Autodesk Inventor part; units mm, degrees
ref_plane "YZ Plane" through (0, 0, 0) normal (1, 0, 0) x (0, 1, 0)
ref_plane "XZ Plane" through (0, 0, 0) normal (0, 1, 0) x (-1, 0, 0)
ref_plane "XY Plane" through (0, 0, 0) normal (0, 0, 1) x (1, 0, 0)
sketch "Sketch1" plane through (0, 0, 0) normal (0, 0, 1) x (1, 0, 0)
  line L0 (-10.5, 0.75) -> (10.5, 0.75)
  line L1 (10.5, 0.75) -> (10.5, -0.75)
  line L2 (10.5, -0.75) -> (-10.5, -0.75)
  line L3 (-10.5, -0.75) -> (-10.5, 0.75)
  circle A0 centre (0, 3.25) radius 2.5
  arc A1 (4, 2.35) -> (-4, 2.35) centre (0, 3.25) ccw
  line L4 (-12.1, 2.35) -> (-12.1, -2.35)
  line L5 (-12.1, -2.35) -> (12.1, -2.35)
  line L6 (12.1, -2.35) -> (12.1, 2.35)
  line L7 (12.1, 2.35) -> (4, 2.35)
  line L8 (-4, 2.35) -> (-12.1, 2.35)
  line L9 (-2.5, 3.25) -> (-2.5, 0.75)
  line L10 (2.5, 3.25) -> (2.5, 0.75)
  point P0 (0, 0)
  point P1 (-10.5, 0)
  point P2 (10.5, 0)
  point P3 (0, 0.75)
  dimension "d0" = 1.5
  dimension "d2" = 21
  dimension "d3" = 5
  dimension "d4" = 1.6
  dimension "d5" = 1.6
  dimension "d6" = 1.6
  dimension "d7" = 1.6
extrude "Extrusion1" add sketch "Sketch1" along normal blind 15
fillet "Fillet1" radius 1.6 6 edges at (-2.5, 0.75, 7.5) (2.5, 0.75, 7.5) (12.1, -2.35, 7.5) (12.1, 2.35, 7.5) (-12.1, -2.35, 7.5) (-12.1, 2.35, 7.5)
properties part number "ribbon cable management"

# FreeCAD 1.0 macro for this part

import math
import FreeCAD as App
import Part
import Sketcher

V = App.Vector
Q = App.Units.Quantity


def edges_at(feature, points):
    """Names of the edges that pass closest to the given points."""
    edges = feature.Shape.Edges
    near = lambda p: min(range(len(edges)), key=lambda i: edges[i].distToShape(Part.Vertex(*p))[0])
    return sorted({f"Edge{near(p) + 1}" for p in points})

doc = App.newDocument("Part")
body = doc.addObject("PartDesign::Body", "Body")

# Sketch on XY plane
sketch1 = body.newObject("Sketcher::SketchObject", "Sketch")
sketch1.AttachmentSupport = (doc.getObject("XY_Plane"), [""])
sketch1.MapMode = "FlatFace"
sketch1.addGeometry([
    Part.LineSegment(V(12.1, 2.4, 0), V(4, 2.4, 0)),  # 0
    Part.ArcOfCircle(Part.Circle(V(0, 3.2, 0), V(0, 0, 1), 4.1), math.radians(-13), math.radians(193)),  # 1
    Part.LineSegment(V(-4, 2.4, 0), V(-12.1, 2.4, 0)),  # 2
    Part.LineSegment(V(-12.1, 2.4, 0), V(-12.1, -2.4, 0)),  # 3
    Part.LineSegment(V(-12.1, -2.4, 0), V(12.1, -2.4, 0)),  # 4
    Part.LineSegment(V(12.1, -2.4, 0), V(12.1, 2.4, 0)),  # 5
    Part.LineSegment(V(-10.5, -0.8, 0), V(-10.5, 0.8, 0)),  # 6
    Part.LineSegment(V(-10.5, 0.8, 0), V(-2.5, 0.8, 0)),  # 7
    Part.LineSegment(V(-2.5, 0.8, 0), V(-2.5, 3.2, 0)),  # 8
    Part.ArcOfCircle(Part.Circle(V(0, 3.2, 0), V(0, 0, 1), 2.5), math.radians(0), math.radians(180)),  # 9
    Part.LineSegment(V(2.5, 3.2, 0), V(2.5, 0.8, 0)),  # 10
    Part.LineSegment(V(2.5, 0.8, 0), V(10.5, 0.8, 0)),  # 11
    Part.LineSegment(V(10.5, 0.8, 0), V(10.5, -0.8, 0)),  # 12
    Part.LineSegment(V(10.5, -0.8, 0), V(-10.5, -0.8, 0)),  # 13
], False)
sketch1.addConstraint([
    Sketcher.Constraint("Coincident", 0, 2, 1, 1),
    Sketcher.Constraint("Coincident", 1, 2, 2, 1),
    Sketcher.Constraint("Coincident", 2, 2, 3, 1),
    Sketcher.Constraint("Coincident", 3, 2, 4, 1),
    Sketcher.Constraint("Coincident", 4, 2, 5, 1),
    Sketcher.Constraint("Coincident", 5, 2, 0, 1),
    Sketcher.Constraint("Coincident", 6, 2, 7, 1),
    Sketcher.Constraint("Coincident", 7, 2, 8, 1),
    Sketcher.Constraint("Tangent", 8, 2, 9, 2),
    Sketcher.Constraint("Tangent", 9, 1, 10, 1),
    Sketcher.Constraint("Coincident", 10, 2, 11, 1),
    Sketcher.Constraint("Coincident", 11, 2, 12, 1),
    Sketcher.Constraint("Coincident", 12, 2, 13, 1),
    Sketcher.Constraint("Coincident", 13, 2, 6, 1),
    Sketcher.Constraint("Horizontal", 0),
    Sketcher.Constraint("Horizontal", 2),
    Sketcher.Constraint("Vertical", 3),
    Sketcher.Constraint("Horizontal", 4),
    Sketcher.Constraint("Vertical", 5),
    Sketcher.Constraint("Vertical", 6),
    Sketcher.Constraint("Horizontal", 7),
    Sketcher.Constraint("Vertical", 8),
    Sketcher.Constraint("Vertical", 10),
    Sketcher.Constraint("Horizontal", 11),
    Sketcher.Constraint("Vertical", 12),
    Sketcher.Constraint("Horizontal", 13),
    Sketcher.Constraint("Coincident", 9, 3, 1, 3),
    Sketcher.Constraint("Symmetric", 2, 2, 4, 2, -1, 1),
    Sketcher.Constraint("Symmetric", 6, 2, 12, 2, -1, 1),
    Sketcher.Constraint("Symmetric", 0, 2, 1, 2, -2),
    Sketcher.Constraint("Horizontal", 7, 2, 10, 2),
    Sketcher.Constraint("Radius", 9, Q("2.5 mm")),
    Sketcher.Constraint("DistanceX", 13, 2, 13, 1, Q("21 mm")),
    Sketcher.Constraint("DistanceY", 6, 1, 6, 2, Q("1.5 mm")),
    Sketcher.Constraint("Radius", 1, Q("4.1 mm")),
    Sketcher.Constraint("DistanceX", 2, 2, 6, 2, Q("1.6 mm")),
    Sketcher.Constraint("DistanceY", 6, 2, 2, 2, Q("1.6 mm")),
    Sketcher.Constraint("DistanceX", 1, 2, 7, 2, Q("1.5 mm")),
])
pad1 = body.newObject("PartDesign::Pad", "Pad")
pad1.Profile = sketch1
pad1.Length = 15
doc.recompute()

fillet = body.newObject("PartDesign::Fillet", "Fillet")
fillet.Base = (pad1, edges_at(pad1, [
    (-2.5, 0.75, 7.5),
    (2.5, 0.75, 7.5),
    (12.1, -2.35, 7.5),
    (12.1, 2.35, 7.5),
    (-12.1, -2.35, 7.5),
    (-12.1, 2.35, 7.5),
]))
fillet.Radius = 1.6

doc.recompute()
